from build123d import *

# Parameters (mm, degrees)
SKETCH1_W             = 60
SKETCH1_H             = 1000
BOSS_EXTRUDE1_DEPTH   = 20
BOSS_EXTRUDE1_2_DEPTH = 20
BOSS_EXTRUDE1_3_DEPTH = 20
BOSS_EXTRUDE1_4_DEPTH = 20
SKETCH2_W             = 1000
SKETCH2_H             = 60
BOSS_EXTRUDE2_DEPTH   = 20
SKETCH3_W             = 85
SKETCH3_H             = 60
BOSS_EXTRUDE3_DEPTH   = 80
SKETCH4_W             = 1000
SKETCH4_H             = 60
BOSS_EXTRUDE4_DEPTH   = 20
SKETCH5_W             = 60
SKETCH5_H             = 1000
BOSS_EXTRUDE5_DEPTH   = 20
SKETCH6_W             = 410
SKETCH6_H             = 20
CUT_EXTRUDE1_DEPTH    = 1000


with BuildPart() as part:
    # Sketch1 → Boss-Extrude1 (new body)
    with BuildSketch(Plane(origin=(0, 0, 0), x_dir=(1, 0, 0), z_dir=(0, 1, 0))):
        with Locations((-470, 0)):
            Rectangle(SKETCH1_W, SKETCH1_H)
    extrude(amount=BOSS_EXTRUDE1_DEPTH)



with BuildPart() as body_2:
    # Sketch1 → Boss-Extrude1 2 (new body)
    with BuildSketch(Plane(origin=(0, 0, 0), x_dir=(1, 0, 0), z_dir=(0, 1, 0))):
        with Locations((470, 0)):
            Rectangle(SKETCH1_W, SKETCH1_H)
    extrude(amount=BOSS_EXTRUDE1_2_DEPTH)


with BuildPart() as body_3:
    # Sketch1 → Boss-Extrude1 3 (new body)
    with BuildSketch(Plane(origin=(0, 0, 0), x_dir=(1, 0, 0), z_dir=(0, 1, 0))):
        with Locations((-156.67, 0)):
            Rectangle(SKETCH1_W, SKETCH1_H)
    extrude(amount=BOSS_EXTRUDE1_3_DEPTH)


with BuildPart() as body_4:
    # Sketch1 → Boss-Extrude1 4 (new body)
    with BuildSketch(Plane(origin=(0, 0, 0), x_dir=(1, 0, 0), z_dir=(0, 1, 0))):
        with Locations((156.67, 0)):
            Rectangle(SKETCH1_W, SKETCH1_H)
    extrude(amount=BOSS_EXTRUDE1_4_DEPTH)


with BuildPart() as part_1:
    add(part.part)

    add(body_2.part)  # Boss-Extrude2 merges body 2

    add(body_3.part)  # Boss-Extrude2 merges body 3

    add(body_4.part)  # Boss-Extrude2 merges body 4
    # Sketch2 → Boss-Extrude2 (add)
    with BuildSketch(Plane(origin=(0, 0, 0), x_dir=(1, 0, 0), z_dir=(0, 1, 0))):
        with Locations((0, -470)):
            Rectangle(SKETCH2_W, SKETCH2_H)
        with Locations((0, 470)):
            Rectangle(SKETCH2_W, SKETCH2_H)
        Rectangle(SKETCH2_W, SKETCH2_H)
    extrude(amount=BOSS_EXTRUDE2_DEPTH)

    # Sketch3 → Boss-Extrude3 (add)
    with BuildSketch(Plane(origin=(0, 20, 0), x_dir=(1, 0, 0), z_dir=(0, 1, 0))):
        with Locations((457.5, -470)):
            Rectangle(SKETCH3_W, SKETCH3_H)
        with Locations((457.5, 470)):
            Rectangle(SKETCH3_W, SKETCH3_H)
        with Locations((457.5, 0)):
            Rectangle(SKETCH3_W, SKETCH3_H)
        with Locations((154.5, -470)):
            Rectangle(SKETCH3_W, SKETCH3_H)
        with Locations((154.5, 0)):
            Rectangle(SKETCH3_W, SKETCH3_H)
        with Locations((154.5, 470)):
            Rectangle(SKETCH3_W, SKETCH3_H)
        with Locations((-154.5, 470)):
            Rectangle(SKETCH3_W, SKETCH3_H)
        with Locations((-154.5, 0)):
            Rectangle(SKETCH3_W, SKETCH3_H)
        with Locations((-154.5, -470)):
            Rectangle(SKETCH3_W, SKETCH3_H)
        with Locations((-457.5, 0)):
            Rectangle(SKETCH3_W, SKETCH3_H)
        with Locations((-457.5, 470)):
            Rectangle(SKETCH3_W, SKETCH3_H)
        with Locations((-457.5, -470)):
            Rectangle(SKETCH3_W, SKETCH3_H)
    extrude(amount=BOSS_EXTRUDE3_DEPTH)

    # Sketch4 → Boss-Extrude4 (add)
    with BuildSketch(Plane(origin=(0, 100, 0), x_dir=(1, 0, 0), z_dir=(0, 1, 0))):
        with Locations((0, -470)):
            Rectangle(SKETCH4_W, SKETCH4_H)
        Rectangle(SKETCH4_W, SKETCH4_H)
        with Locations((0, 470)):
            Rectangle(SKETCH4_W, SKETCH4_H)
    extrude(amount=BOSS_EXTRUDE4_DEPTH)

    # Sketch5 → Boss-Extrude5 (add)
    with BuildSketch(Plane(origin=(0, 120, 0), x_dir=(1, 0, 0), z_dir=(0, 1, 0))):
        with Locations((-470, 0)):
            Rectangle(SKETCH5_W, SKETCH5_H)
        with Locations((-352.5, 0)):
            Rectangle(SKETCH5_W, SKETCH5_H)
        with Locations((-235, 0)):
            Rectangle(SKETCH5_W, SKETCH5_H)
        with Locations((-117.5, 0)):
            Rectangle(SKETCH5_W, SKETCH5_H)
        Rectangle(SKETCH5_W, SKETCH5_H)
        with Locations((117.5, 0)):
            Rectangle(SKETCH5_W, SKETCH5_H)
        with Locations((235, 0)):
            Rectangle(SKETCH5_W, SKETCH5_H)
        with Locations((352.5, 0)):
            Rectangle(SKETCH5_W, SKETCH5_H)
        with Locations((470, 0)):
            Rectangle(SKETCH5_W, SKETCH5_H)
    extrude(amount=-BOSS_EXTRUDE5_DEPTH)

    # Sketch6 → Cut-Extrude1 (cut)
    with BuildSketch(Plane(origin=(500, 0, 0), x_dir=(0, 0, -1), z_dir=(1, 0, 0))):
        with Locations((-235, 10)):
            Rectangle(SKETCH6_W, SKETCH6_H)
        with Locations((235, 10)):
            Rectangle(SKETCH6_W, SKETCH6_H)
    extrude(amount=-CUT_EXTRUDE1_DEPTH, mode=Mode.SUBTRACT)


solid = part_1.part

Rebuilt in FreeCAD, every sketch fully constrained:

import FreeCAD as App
import Part
import Sketcher

doc = App.newDocument("Part")
params = doc.addObject("Spreadsheet::Sheet", "Params")
for row, (alias, value) in enumerate([
    ("sketch1_width", "60 mm"),
    ("sketch1_height", "1000 mm"),
    ("pad1_length", "20 mm"),
    ("sketch2_width", "60 mm"),
    ("sketch2_height", "1000 mm"),
    ("pad2_length", "20 mm"),
    ("sketch3_width", "60 mm"),
    ("sketch3_height", "1000 mm"),
    ("pad3_length", "20 mm"),
    ("sketch4_width", "60 mm"),
    ("sketch4_height", "1000 mm"),
    ("pad4_length", "20 mm"),
    ("sketch5_width", "1000 mm"),
    ("sketch5_height", "60 mm"),
    ("pad5_length", "20 mm"),
    ("sketch6_width", "85 mm"),
    ("sketch6_height", "60 mm"),
    ("pad6_length", "80 mm"),
    ("sketch7_width", "1000 mm"),
    ("sketch7_height", "60 mm"),
    ("pad7_length", "20 mm"),
    ("sketch8_width", "60 mm"),
    ("sketch8_height", "1000 mm"),
    ("pad8_length", "20 mm"),
    ("sketch9_width", "20 mm"),
    ("sketch9_height", "410 mm"),
    ("pocket1_length", "1000 mm"),
], start=1):
    params.set(f"A{row}", alias)
    params.set(f"B{row}", "=" + value)
    params.setAlias(f"B{row}", alias)

body = doc.addObject("PartDesign::Body", "Body")

# Sketch on XZ plane
sketch1 = body.newObject("Sketcher::SketchObject", "Sketch")
sketch1.AttachmentSupport = (doc.getObject("XZ_Plane"), [""])
sketch1.MapMode = "FlatFace"
sketch1.addGeometry([
    Part.LineSegment(App.Vector(-500, -500, 0), App.Vector(-500, 500, 0)),
    Part.LineSegment(App.Vector(-500, 500, 0), App.Vector(-440, 500, 0)),
    Part.LineSegment(App.Vector(-440, 500, 0), App.Vector(-440, -500, 0)),
    Part.LineSegment(App.Vector(-440, -500, 0), App.Vector(-500, -500, 0)),
], False)
sketch1.addConstraint([
    Sketcher.Constraint("Coincident", 0, 2, 1, 1),
    Sketcher.Constraint("Coincident", 1, 2, 2, 1),
    Sketcher.Constraint("Coincident", 2, 2, 3, 1),
    Sketcher.Constraint("Coincident", 3, 2, 0, 1),
    Sketcher.Constraint("Vertical", 0),
    Sketcher.Constraint("Horizontal", 1),
    Sketcher.Constraint("Vertical", 2),
    Sketcher.Constraint("Horizontal", 3),
    Sketcher.Constraint("DistanceX", 1, 1, 1, 2, 60.0),
    Sketcher.Constraint("DistanceY", 0, 1, 0, 2, 1000.0),
    Sketcher.Constraint("DistanceX", 0, 2, -1, 1, 500.0),
    Sketcher.Constraint("DistanceY", -1, 1, 0, 2, 500.0),
])
sketch1.setExpression("Constraints[8]", "Params.sketch1_width")
sketch1.setExpression("Constraints[9]", "Params.sketch1_height")
pad1 = body.newObject("PartDesign::Pad", "Pad")
pad1.Profile = sketch1
pad1.setExpression("Length", "Params.pad1_length")
pad1.Reversed = True
body2 = doc.addObject("PartDesign::Body", "Body001")

# Sketch on XZ plane
sketch2 = body2.newObject("Sketcher::SketchObject", "Sketch001")
sketch2.AttachmentSupport = (doc.getObject("XZ_Plane001"), [""])
sketch2.MapMode = "FlatFace"
sketch2.addGeometry([
    Part.LineSegment(App.Vector(440, -500, 0), App.Vector(440, 500, 0)),
    Part.LineSegment(App.Vector(440, 500, 0), App.Vector(500, 500, 0)),
    Part.LineSegment(App.Vector(500, 500, 0), App.Vector(500, -500, 0)),
    Part.LineSegment(App.Vector(500, -500, 0), App.Vector(440, -500, 0)),
], False)
sketch2.addConstraint([
    Sketcher.Constraint("Coincident", 0, 2, 1, 1),
    Sketcher.Constraint("Coincident", 1, 2, 2, 1),
    Sketcher.Constraint("Coincident", 2, 2, 3, 1),
    Sketcher.Constraint("Coincident", 3, 2, 0, 1),
    Sketcher.Constraint("Vertical", 0),
    Sketcher.Constraint("Horizontal", 1),
    Sketcher.Constraint("Vertical", 2),
    Sketcher.Constraint("Horizontal", 3),
    Sketcher.Constraint("DistanceX", 1, 1, 1, 2, 60.0),
    Sketcher.Constraint("DistanceY", 0, 1, 0, 2, 1000.0),
    Sketcher.Constraint("DistanceX", -1, 1, 0, 2, 440.0),
    Sketcher.Constraint("DistanceY", -1, 1, 0, 2, 500.0),
])
sketch2.setExpression("Constraints[8]", "Params.sketch2_width")
sketch2.setExpression("Constraints[9]", "Params.sketch2_height")
pad2 = body2.newObject("PartDesign::Pad", "Pad001")
pad2.Profile = sketch2
pad2.setExpression("Length", "Params.pad2_length")
pad2.Reversed = True
body3 = doc.addObject("PartDesign::Body", "Body002")

# Sketch on XZ plane
sketch3 = body3.newObject("Sketcher::SketchObject", "Sketch002")
sketch3.AttachmentSupport = (doc.getObject("XZ_Plane002"), [""])
sketch3.MapMode = "FlatFace"
sketch3.addGeometry([
    Part.LineSegment(App.Vector(-187, -500, 0), App.Vector(-187, 500, 0)),
    Part.LineSegment(App.Vector(-187, 500, 0), App.Vector(-127, 500, 0)),
    Part.LineSegment(App.Vector(-127, 500, 0), App.Vector(-127, -500, 0)),
    Part.LineSegment(App.Vector(-127, -500, 0), App.Vector(-187, -500, 0)),
], False)
sketch3.addConstraint([
    Sketcher.Constraint("Coincident", 0, 2, 1, 1),
    Sketcher.Constraint("Coincident", 1, 2, 2, 1),
    Sketcher.Constraint("Coincident", 2, 2, 3, 1),
    Sketcher.Constraint("Coincident", 3, 2, 0, 1),
    Sketcher.Constraint("Vertical", 0),
    Sketcher.Constraint("Horizontal", 1),
    Sketcher.Constraint("Vertical", 2),
    Sketcher.Constraint("Horizontal", 3),
    Sketcher.Constraint("DistanceX", 1, 1, 1, 2, 60.0),
    Sketcher.Constraint("DistanceY", 0, 1, 0, 2, 1000.0),
    Sketcher.Constraint("DistanceY", -1, 1, 0, 2, 500.0),
    Sketcher.Constraint("DistanceX", 0, 2, -1, 1, 186.67),
])
sketch3.setExpression("Constraints[8]", "Params.sketch3_width")
sketch3.setExpression("Constraints[9]", "Params.sketch3_height")
pad3 = body3.newObject("PartDesign::Pad", "Pad002")
pad3.Profile = sketch3
pad3.setExpression("Length", "Params.pad3_length")
pad3.Reversed = True
body4 = doc.addObject("PartDesign::Body", "Body003")

# Sketch on XZ plane
sketch4 = body4.newObject("Sketcher::SketchObject", "Sketch003")
sketch4.AttachmentSupport = (doc.getObject("XZ_Plane003"), [""])
sketch4.MapMode = "FlatFace"
sketch4.addGeometry([
    Part.LineSegment(App.Vector(127, -500, 0), App.Vector(127, 500, 0)),
    Part.LineSegment(App.Vector(127, 500, 0), App.Vector(187, 500, 0)),
    Part.LineSegment(App.Vector(187, 500, 0), App.Vector(187, -500, 0)),
    Part.LineSegment(App.Vector(187, -500, 0), App.Vector(127, -500, 0)),
], False)
sketch4.addConstraint([
    Sketcher.Constraint("Coincident", 0, 2, 1, 1),
    Sketcher.Constraint("Coincident", 1, 2, 2, 1),
    Sketcher.Constraint("Coincident", 2, 2, 3, 1),
    Sketcher.Constraint("Coincident", 3, 2, 0, 1),
    Sketcher.Constraint("Vertical", 0),
    Sketcher.Constraint("Horizontal", 1),
    Sketcher.Constraint("Vertical", 2),
    Sketcher.Constraint("Horizontal", 3),
    Sketcher.Constraint("DistanceX", 1, 1, 1, 2, 60.0),
    Sketcher.Constraint("DistanceY", 0, 1, 0, 2, 1000.0),
    Sketcher.Constraint("DistanceY", -1, 1, 0, 2, 500.0),
    Sketcher.Constraint("DistanceX", -1, 1, 0, 2, 126.67),
])
sketch4.setExpression("Constraints[8]", "Params.sketch4_width")
sketch4.setExpression("Constraints[9]", "Params.sketch4_height")
pad4 = body4.newObject("PartDesign::Pad", "Pad003")
pad4.Profile = sketch4
pad4.setExpression("Length", "Params.pad4_length")
pad4.Reversed = True
body.AllowCompound = True
doc.recompute()

boolean = body.newObject("PartDesign::Boolean", "Boolean")
boolean.Type = "Fuse"
boolean.addObjects([body2])
doc.recompute()

boolean2 = body.newObject("PartDesign::Boolean", "Boolean001")
boolean2.Type = "Fuse"
boolean2.addObjects([body3])
doc.recompute()

boolean3 = body.newObject("PartDesign::Boolean", "Boolean002")
boolean3.Type = "Fuse"
boolean3.addObjects([body4])

# Sketch on XZ plane
sketch5 = body.newObject("Sketcher::SketchObject", "Sketch004")
sketch5.AttachmentSupport = (doc.getObject("XZ_Plane"), [""])
sketch5.MapMode = "FlatFace"
sketch5.addGeometry([
    Part.LineSegment(App.Vector(-500, 440, 0), App.Vector(-500, 500, 0)),  # 0
    Part.LineSegment(App.Vector(-500, 500, 0), App.Vector(500, 500, 0)),  # 1
    Part.LineSegment(App.Vector(500, 500, 0), App.Vector(500, 440, 0)),  # 2
    Part.LineSegment(App.Vector(500, 440, 0), App.Vector(-500, 440, 0)),  # 3
    Part.LineSegment(App.Vector(-500, -500, 0), App.Vector(-500, -440, 0)),  # 4
    Part.LineSegment(App.Vector(-500, -440, 0), App.Vector(500, -440, 0)),  # 5
    Part.LineSegment(App.Vector(500, -440, 0), App.Vector(500, -500, 0)),  # 6
    Part.LineSegment(App.Vector(500, -500, 0), App.Vector(-500, -500, 0)),  # 7
    Part.LineSegment(App.Vector(-500, -30, 0), App.Vector(-500, 30, 0)),  # 8
    Part.LineSegment(App.Vector(-500, 30, 0), App.Vector(500, 30, 0)),  # 9
    Part.LineSegment(App.Vector(500, 30, 0), App.Vector(500, -30, 0)),  # 10
    Part.LineSegment(App.Vector(500, -30, 0), App.Vector(-500, -30, 0)),  # 11
], False)
sketch5.addConstraint([
    Sketcher.Constraint("Coincident", 0, 2, 1, 1),
    Sketcher.Constraint("Coincident", 1, 2, 2, 1),
    Sketcher.Constraint("Coincident", 2, 2, 3, 1),
    Sketcher.Constraint("Coincident", 3, 2, 0, 1),
    Sketcher.Constraint("Coincident", 4, 2, 5, 1),
    Sketcher.Constraint("Coincident", 5, 2, 6, 1),
    Sketcher.Constraint("Coincident", 6, 2, 7, 1),
    Sketcher.Constraint("Coincident", 7, 2, 4, 1),
    Sketcher.Constraint("Coincident", 8, 2, 9, 1),
    Sketcher.Constraint("Coincident", 9, 2, 10, 1),
    Sketcher.Constraint("Coincident", 10, 2, 11, 1),
    Sketcher.Constraint("Coincident", 11, 2, 8, 1),
    Sketcher.Constraint("Vertical", 0),
    Sketcher.Constraint("Horizontal", 1),
    Sketcher.Constraint("Vertical", 2),
    Sketcher.Constraint("Horizontal", 3),
    Sketcher.Constraint("Vertical", 4),
    Sketcher.Constraint("Horizontal", 5),
    Sketcher.Constraint("Vertical", 6),
    Sketcher.Constraint("Horizontal", 7),
    Sketcher.Constraint("Vertical", 8),
    Sketcher.Constraint("Horizontal", 9),
    Sketcher.Constraint("Vertical", 10),
    Sketcher.Constraint("Horizontal", 11),
    Sketcher.Constraint("Symmetric", 2, 2, 4, 2, -1, 1),
    Sketcher.Constraint("Symmetric", 0, 2, 6, 2, -1, 1),
    Sketcher.Constraint("Symmetric", 8, 2, 10, 2, -1, 1),
    Sketcher.Constraint("Vertical", 3, 2, 4, 2),
    Sketcher.Constraint("Vertical", 7, 2, 8, 2),
    Sketcher.Constraint("Equal", 6, 8),
    Sketcher.Constraint("DistanceX", 1, 1, 1, 2, 1000.0),
    Sketcher.Constraint("DistanceY", 0, 1, 0, 2, 60.0),
    Sketcher.Constraint("DistanceY", -1, 1, 0, 2, 500.0),
])
sketch5.setExpression("Constraints[30]", "Params.sketch5_width")
sketch5.setExpression("Constraints[31]", "Params.sketch5_height")
pad5 = body.newObject("PartDesign::Pad", "Pad004")
pad5.Profile = sketch5
pad5.setExpression("Length", "Params.pad5_length")
pad5.Reversed = True

# Sketch on XZ plane
sketch6 = body.newObject("Sketcher::SketchObject", "Sketch005")
sketch6.AttachmentSupport = (doc.getObject("XZ_Plane"), [""])
sketch6.MapMode = "FlatFace"
sketch6.AttachmentOffset = App.Placement(App.Vector(0, 0, -20), App.Rotation())
sketch6.addGeometry([
    Part.LineSegment(App.Vector(415, 440, 0), App.Vector(415, 500, 0)),  # 0
    Part.LineSegment(App.Vector(415, 500, 0), App.Vector(500, 500, 0)),  # 1
    Part.LineSegment(App.Vector(500, 500, 0), App.Vector(500, 440, 0)),  # 2
    Part.LineSegment(App.Vector(500, 440, 0), App.Vector(415, 440, 0)),  # 3
    Part.LineSegment(App.Vector(415, -500, 0), App.Vector(415, -440, 0)),  # 4
    Part.LineSegment(App.Vector(415, -440, 0), App.Vector(500, -440, 0)),  # 5
    Part.LineSegment(App.Vector(500, -440, 0), App.Vector(500, -500, 0)),  # 6
    Part.LineSegment(App.Vector(500, -500, 0), App.Vector(415, -500, 0)),  # 7
    Part.LineSegment(App.Vector(415, -30, 0), App.Vector(415, 30, 0)),  # 8
    Part.LineSegment(App.Vector(415, 30, 0), App.Vector(500, 30, 0)),  # 9
    Part.LineSegment(App.Vector(500, 30, 0), App.Vector(500, -30, 0)),  # 10
    Part.LineSegment(App.Vector(500, -30, 0), App.Vector(415, -30, 0)),  # 11
    Part.LineSegment(App.Vector(112, 440, 0), App.Vector(112, 500, 0)),  # 12
    Part.LineSegment(App.Vector(112, 500, 0), App.Vector(197, 500, 0)),  # 13
    Part.LineSegment(App.Vector(197, 500, 0), App.Vector(197, 440, 0)),  # 14
    Part.LineSegment(App.Vector(197, 440, 0), App.Vector(112, 440, 0)),  # 15
    Part.LineSegment(App.Vector(112, -30, 0), App.Vector(112, 30, 0)),  # 16
    Part.LineSegment(App.Vector(112, 30, 0), App.Vector(197, 30, 0)),  # 17
    Part.LineSegment(App.Vector(197, 30, 0), App.Vector(197, -30, 0)),  # 18
    Part.LineSegment(App.Vector(197, -30, 0), App.Vector(112, -30, 0)),  # 19
    Part.LineSegment(App.Vector(112, -500, 0), App.Vector(112, -440, 0)),  # 20
    Part.LineSegment(App.Vector(112, -440, 0), App.Vector(197, -440, 0)),  # 21
    Part.LineSegment(App.Vector(197, -440, 0), App.Vector(197, -500, 0)),  # 22
    Part.LineSegment(App.Vector(197, -500, 0), App.Vector(112, -500, 0)),  # 23
    Part.LineSegment(App.Vector(-197, -500, 0), App.Vector(-197, -440, 0)),  # 24
    Part.LineSegment(App.Vector(-197, -440, 0), App.Vector(-112, -440, 0)),  # 25
    Part.LineSegment(App.Vector(-112, -440, 0), App.Vector(-112, -500, 0)),  # 26
    Part.LineSegment(App.Vector(-112, -500, 0), App.Vector(-197, -500, 0)),  # 27
    Part.LineSegment(App.Vector(-197, -30, 0), App.Vector(-197, 30, 0)),  # 28
    Part.LineSegment(App.Vector(-197, 30, 0), App.Vector(-112, 30, 0)),  # 29
    Part.LineSegment(App.Vector(-112, 30, 0), App.Vector(-112, -30, 0)),  # 30
    Part.LineSegment(App.Vector(-112, -30, 0), App.Vector(-197, -30, 0)),  # 31
    Part.LineSegment(App.Vector(-197, 440, 0), App.Vector(-197, 500, 0)),  # 32
    Part.LineSegment(App.Vector(-197, 500, 0), App.Vector(-112, 500, 0)),  # 33
    Part.LineSegment(App.Vector(-112, 500, 0), App.Vector(-112, 440, 0)),  # 34
    Part.LineSegment(App.Vector(-112, 440, 0), App.Vector(-197, 440, 0)),  # 35
    Part.LineSegment(App.Vector(-500, -30, 0), App.Vector(-500, 30, 0)),  # 36
    Part.LineSegment(App.Vector(-500, 30, 0), App.Vector(-415, 30, 0)),  # 37
    Part.LineSegment(App.Vector(-415, 30, 0), App.Vector(-415, -30, 0)),  # 38
    Part.LineSegment(App.Vector(-415, -30, 0), App.Vector(-500, -30, 0)),  # 39
    Part.LineSegment(App.Vector(-500, -500, 0), App.Vector(-500, -440, 0)),  # 40
    Part.LineSegment(App.Vector(-500, -440, 0), App.Vector(-415, -440, 0)),  # 41
    Part.LineSegment(App.Vector(-415, -440, 0), App.Vector(-415, -500, 0)),  # 42
    Part.LineSegment(App.Vector(-415, -500, 0), App.Vector(-500, -500, 0)),  # 43
    Part.LineSegment(App.Vector(-500, 440, 0), App.Vector(-500, 500, 0)),  # 44
    Part.LineSegment(App.Vector(-500, 500, 0), App.Vector(-415, 500, 0)),  # 45
    Part.LineSegment(App.Vector(-415, 500, 0), App.Vector(-415, 440, 0)),  # 46
    Part.LineSegment(App.Vector(-415, 440, 0), App.Vector(-500, 440, 0)),  # 47
], False)
sketch6.addConstraint([
    Sketcher.Constraint("Coincident", 0, 2, 1, 1),
    Sketcher.Constraint("Coincident", 1, 2, 2, 1),
    Sketcher.Constraint("Coincident", 2, 2, 3, 1),
    Sketcher.Constraint("Coincident", 3, 2, 0, 1),
    Sketcher.Constraint("Coincident", 4, 2, 5, 1),
    Sketcher.Constraint("Coincident", 5, 2, 6, 1),
    Sketcher.Constraint("Coincident", 6, 2, 7, 1),
    Sketcher.Constraint("Coincident", 7, 2, 4, 1),
    Sketcher.Constraint("Coincident", 8, 2, 9, 1),
    Sketcher.Constraint("Coincident", 9, 2, 10, 1),
    Sketcher.Constraint("Coincident", 10, 2, 11, 1),
    Sketcher.Constraint("Coincident", 11, 2, 8, 1),
    Sketcher.Constraint("Coincident", 12, 2, 13, 1),
    Sketcher.Constraint("Coincident", 13, 2, 14, 1),
    Sketcher.Constraint("Coincident", 14, 2, 15, 1),
    Sketcher.Constraint("Coincident", 15, 2, 12, 1),
    Sketcher.Constraint("Coincident", 16, 2, 17, 1),
    Sketcher.Constraint("Coincident", 17, 2, 18, 1),
    Sketcher.Constraint("Coincident", 18, 2, 19, 1),
    Sketcher.Constraint("Coincident", 19, 2, 16, 1),
    Sketcher.Constraint("Coincident", 20, 2, 21, 1),
    Sketcher.Constraint("Coincident", 21, 2, 22, 1),
    Sketcher.Constraint("Coincident", 22, 2, 23, 1),
    Sketcher.Constraint("Coincident", 23, 2, 20, 1),
    Sketcher.Constraint("Coincident", 24, 2, 25, 1),
    Sketcher.Constraint("Coincident", 25, 2, 26, 1),
    Sketcher.Constraint("Coincident", 26, 2, 27, 1),
    Sketcher.Constraint("Coincident", 27, 2, 24, 1),
    Sketcher.Constraint("Coincident", 28, 2, 29, 1),
    Sketcher.Constraint("Coincident", 29, 2, 30, 1),
    Sketcher.Constraint("Coincident", 30, 2, 31, 1),
    Sketcher.Constraint("Coincident", 31, 2, 28, 1),
    Sketcher.Constraint("Coincident", 32, 2, 33, 1),
    Sketcher.Constraint("Coincident", 33, 2, 34, 1),
    Sketcher.Constraint("Coincident", 34, 2, 35, 1),
    Sketcher.Constraint("Coincident", 35, 2, 32, 1),
    Sketcher.Constraint("Coincident", 36, 2, 37, 1),
    Sketcher.Constraint("Coincident", 37, 2, 38, 1),
    Sketcher.Constraint("Coincident", 38, 2, 39, 1),
    Sketcher.Constraint("Coincident", 39, 2, 36, 1),
    Sketcher.Constraint("Coincident", 40, 2, 41, 1),
    Sketcher.Constraint("Coincident", 41, 2, 42, 1),
    Sketcher.Constraint("Coincident", 42, 2, 43, 1),
    Sketcher.Constraint("Coincident", 43, 2, 40, 1),
    Sketcher.Constraint("Coincident", 44, 2, 45, 1),
    Sketcher.Constraint("Coincident", 45, 2, 46, 1),
    Sketcher.Constraint("Coincident", 46, 2, 47, 1),
    Sketcher.Constraint("Coincident", 47, 2, 44, 1),
    Sketcher.Constraint("Vertical", 0),
    Sketcher.Constraint("Horizontal", 1),
    Sketcher.Constraint("Vertical", 2),
    Sketcher.Constraint("Horizontal", 3),
    Sketcher.Constraint("Vertical", 4),
    Sketcher.Constraint("Horizontal", 5),
    Sketcher.Constraint("Vertical", 6),
    Sketcher.Constraint("Horizontal", 7),
    Sketcher.Constraint("Vertical", 8),
    Sketcher.Constraint("Horizontal", 9),
    Sketcher.Constraint("Vertical", 10),
    Sketcher.Constraint("Horizontal", 11),
    Sketcher.Constraint("Vertical", 12),
    Sketcher.Constraint("Horizontal", 13),
    Sketcher.Constraint("Vertical", 14),
    Sketcher.Constraint("Horizontal", 15),
    Sketcher.Constraint("Vertical", 16),
    Sketcher.Constraint("Horizontal", 17),
    Sketcher.Constraint("Vertical", 18),
    Sketcher.Constraint("Horizontal", 19),
    Sketcher.Constraint("Vertical", 20),
    Sketcher.Constraint("Horizontal", 21),
    Sketcher.Constraint("Vertical", 22),
    Sketcher.Constraint("Horizontal", 23),
    Sketcher.Constraint("Vertical", 24),
    Sketcher.Constraint("Horizontal", 25),
    Sketcher.Constraint("Vertical", 26),
    Sketcher.Constraint("Horizontal", 27),
    Sketcher.Constraint("Vertical", 28),
    Sketcher.Constraint("Horizontal", 29),
    Sketcher.Constraint("Vertical", 30),
    Sketcher.Constraint("Horizontal", 31),
    Sketcher.Constraint("Vertical", 32),
    Sketcher.Constraint("Horizontal", 33),
    Sketcher.Constraint("Vertical", 34),
    Sketcher.Constraint("Horizontal", 35),
    Sketcher.Constraint("Vertical", 36),
    Sketcher.Constraint("Horizontal", 37),
    Sketcher.Constraint("Vertical", 38),
    Sketcher.Constraint("Horizontal", 39),
    Sketcher.Constraint("Vertical", 40),
    Sketcher.Constraint("Horizontal", 41),
    Sketcher.Constraint("Vertical", 42),
    Sketcher.Constraint("Horizontal", 43),
    Sketcher.Constraint("Vertical", 44),
    Sketcher.Constraint("Horizontal", 45),
    Sketcher.Constraint("Vertical", 46),
    Sketcher.Constraint("Horizontal", 47),
    Sketcher.Constraint("Symmetric", 14, 2, 24, 2, -1, 1),
    Sketcher.Constraint("Symmetric", 12, 2, 26, 2, -1, 1),
    Sketcher.Constraint("Symmetric", 18, 2, 28, 2, -1, 1),
    Sketcher.Constraint("Symmetric", 16, 2, 30, 2, -1, 1),
    Sketcher.Constraint("Symmetric", 22, 2, 32, 2, -1, 1),
    Sketcher.Constraint("Symmetric", 20, 2, 34, 2, -1, 1),
    Sketcher.Constraint("Symmetric", 10, 2, 36, 2, -1, 1),
    Sketcher.Constraint("Symmetric", 8, 2, 38, 2, -1, 1),
    Sketcher.Constraint("Symmetric", 2, 2, 40, 2, -1, 1),
    Sketcher.Constraint("Symmetric", 0, 2, 42, 2, -1, 1),
    Sketcher.Constraint("Symmetric", 6, 2, 44, 2, -1, 1),
    Sketcher.Constraint("Symmetric", 4, 2, 46, 2, -1, 1),
    Sketcher.Constraint("Symmetric", 21, 2, 24, 2, -2),
    Sketcher.Constraint("Symmetric", 23, 2, 26, 2, -2),
    Sketcher.Constraint("Symmetric", 5, 2, 40, 2, -2),
    Sketcher.Constraint("Symmetric", 7, 2, 42, 2, -2),
    Sketcher.Constraint("Horizontal", 1, 2, 12, 2),
    Sketcher.Constraint("Horizontal", 3, 2, 14, 2),
    Sketcher.Constraint("Horizontal", 9, 2, 16, 2),
    Sketcher.Constraint("Horizontal", 11, 2, 18, 2),
    Sketcher.Constraint("Horizontal", 17, 2, 28, 2),
    Sketcher.Constraint("Vertical", 7, 2, 8, 2),
    Sketcher.Constraint("Vertical", 6, 2, 9, 2),
    Sketcher.Constraint("Vertical", 15, 2, 16, 2),
    Sketcher.Constraint("Vertical", 14, 2, 17, 2),
    Sketcher.Constraint("Equal", 11, 13),
    Sketcher.Constraint("Equal", 6, 8),
    Sketcher.Constraint("DistanceX", 1, 1, 1, 2, 85.0),
    Sketcher.Constraint("DistanceY", 0, 1, 0, 2, 60.0),
    Sketcher.Constraint("DistanceX", -1, 1, 0, 2, 415.0),
    Sketcher.Constraint("DistanceY", -1, 1, 0, 2, 500.0),
    Sketcher.Constraint("DistanceX", -1, 1, 12, 2, 112.0),
])
sketch6.setExpression("Constraints[123]", "Params.sketch6_width")
sketch6.setExpression("Constraints[124]", "Params.sketch6_height")
pad6 = body.newObject("PartDesign::Pad", "Pad005")
pad6.Profile = sketch6
pad6.setExpression("Length", "Params.pad6_length")
pad6.Reversed = True

# Sketch on XZ plane
sketch7 = body.newObject("Sketcher::SketchObject", "Sketch006")
sketch7.AttachmentSupport = (doc.getObject("XZ_Plane"), [""])
sketch7.MapMode = "FlatFace"
sketch7.AttachmentOffset = App.Placement(App.Vector(0, 0, -100), App.Rotation())
sketch7.addGeometry([
    Part.LineSegment(App.Vector(-500, 440, 0), App.Vector(-500, 500, 0)),  # 0
    Part.LineSegment(App.Vector(-500, 500, 0), App.Vector(500, 500, 0)),  # 1
    Part.LineSegment(App.Vector(500, 500, 0), App.Vector(500, 440, 0)),  # 2
    Part.LineSegment(App.Vector(500, 440, 0), App.Vector(-500, 440, 0)),  # 3
    Part.LineSegment(App.Vector(-500, -30, 0), App.Vector(-500, 30, 0)),  # 4
    Part.LineSegment(App.Vector(-500, 30, 0), App.Vector(500, 30, 0)),  # 5
    Part.LineSegment(App.Vector(500, 30, 0), App.Vector(500, -30, 0)),  # 6
    Part.LineSegment(App.Vector(500, -30, 0), App.Vector(-500, -30, 0)),  # 7
    Part.LineSegment(App.Vector(-500, -500, 0), App.Vector(-500, -440, 0)),  # 8
    Part.LineSegment(App.Vector(-500, -440, 0), App.Vector(500, -440, 0)),  # 9
    Part.LineSegment(App.Vector(500, -440, 0), App.Vector(500, -500, 0)),  # 10
    Part.LineSegment(App.Vector(500, -500, 0), App.Vector(-500, -500, 0)),  # 11
], False)
sketch7.addConstraint([
    Sketcher.Constraint("Coincident", 0, 2, 1, 1),
    Sketcher.Constraint("Coincident", 1, 2, 2, 1),
    Sketcher.Constraint("Coincident", 2, 2, 3, 1),
    Sketcher.Constraint("Coincident", 3, 2, 0, 1),
    Sketcher.Constraint("Coincident", 4, 2, 5, 1),
    Sketcher.Constraint("Coincident", 5, 2, 6, 1),
    Sketcher.Constraint("Coincident", 6, 2, 7, 1),
    Sketcher.Constraint("Coincident", 7, 2, 4, 1),
    Sketcher.Constraint("Coincident", 8, 2, 9, 1),
    Sketcher.Constraint("Coincident", 9, 2, 10, 1),
    Sketcher.Constraint("Coincident", 10, 2, 11, 1),
    Sketcher.Constraint("Coincident", 11, 2, 8, 1),
    Sketcher.Constraint("Vertical", 0),
    Sketcher.Constraint("Horizontal", 1),
    Sketcher.Constraint("Vertical", 2),
    Sketcher.Constraint("Horizontal", 3),
    Sketcher.Constraint("Vertical", 4),
    Sketcher.Constraint("Horizontal", 5),
    Sketcher.Constraint("Vertical", 6),
    Sketcher.Constraint("Horizontal", 7),
    Sketcher.Constraint("Vertical", 8),
    Sketcher.Constraint("Horizontal", 9),
    Sketcher.Constraint("Vertical", 10),
    Sketcher.Constraint("Horizontal", 11),
    Sketcher.Constraint("Symmetric", 4, 2, 6, 2, -1, 1),
    Sketcher.Constraint("Symmetric", 2, 2, 8, 2, -1, 1),
    Sketcher.Constraint("Symmetric", 0, 2, 10, 2, -1, 1),
    Sketcher.Constraint("Vertical", 3, 2, 4, 2),
    Sketcher.Constraint("Vertical", 2, 2, 5, 2),
    Sketcher.Constraint("Equal", 2, 4),
    Sketcher.Constraint("DistanceX", 1, 1, 1, 2, 1000.0),
    Sketcher.Constraint("DistanceY", 0, 1, 0, 2, 60.0),
    Sketcher.Constraint("DistanceY", -1, 1, 0, 2, 500.0),
])
sketch7.setExpression("Constraints[30]", "Params.sketch7_width")
sketch7.setExpression("Constraints[31]", "Params.sketch7_height")
pad7 = body.newObject("PartDesign::Pad", "Pad006")
pad7.Profile = sketch7
pad7.setExpression("Length", "Params.pad7_length")
pad7.Reversed = True

# Sketch on XZ plane
sketch8 = body.newObject("Sketcher::SketchObject", "Sketch007")
sketch8.AttachmentSupport = (doc.getObject("XZ_Plane"), [""])
sketch8.MapMode = "FlatFace"
sketch8.AttachmentOffset = App.Placement(App.Vector(0, 0, -120), App.Rotation())
sketch8.addGeometry([
    Part.LineSegment(App.Vector(-500, -500, 0), App.Vector(-500, 500, 0)),  # 0
    Part.LineSegment(App.Vector(-500, 500, 0), App.Vector(-440, 500, 0)),  # 1
    Part.LineSegment(App.Vector(-440, 500, 0), App.Vector(-440, -500, 0)),  # 2
    Part.LineSegment(App.Vector(-440, -500, 0), App.Vector(-500, -500, 0)),  # 3
    Part.LineSegment(App.Vector(-382, -500, 0), App.Vector(-382, 500, 0)),  # 4
    Part.LineSegment(App.Vector(-382, 500, 0), App.Vector(-322, 500, 0)),  # 5
    Part.LineSegment(App.Vector(-322, 500, 0), App.Vector(-322, -500, 0)),  # 6
    Part.LineSegment(App.Vector(-322, -500, 0), App.Vector(-382, -500, 0)),  # 7
    Part.LineSegment(App.Vector(-265, -500, 0), App.Vector(-265, 500, 0)),  # 8
    Part.LineSegment(App.Vector(-265, 500, 0), App.Vector(-205, 500, 0)),  # 9
    Part.LineSegment(App.Vector(-205, 500, 0), App.Vector(-205, -500, 0)),  # 10
    Part.LineSegment(App.Vector(-205, -500, 0), App.Vector(-265, -500, 0)),  # 11
    Part.LineSegment(App.Vector(-148, -500, 0), App.Vector(-148, 500, 0)),  # 12
    Part.LineSegment(App.Vector(-148, 500, 0), App.Vector(-88, 500, 0)),  # 13
    Part.LineSegment(App.Vector(-88, 500, 0), App.Vector(-88, -500, 0)),  # 14
    Part.LineSegment(App.Vector(-88, -500, 0), App.Vector(-148, -500, 0)),  # 15
    Part.LineSegment(App.Vector(-30, -500, 0), App.Vector(-30, 500, 0)),  # 16
    Part.LineSegment(App.Vector(-30, 500, 0), App.Vector(30, 500, 0)),  # 17
    Part.LineSegment(App.Vector(30, 500, 0), App.Vector(30, -500, 0)),  # 18
    Part.LineSegment(App.Vector(30, -500, 0), App.Vector(-30, -500, 0)),  # 19
    Part.LineSegment(App.Vector(88, -500, 0), App.Vector(88, 500, 0)),  # 20
    Part.LineSegment(App.Vector(88, 500, 0), App.Vector(148, 500, 0)),  # 21
    Part.LineSegment(App.Vector(148, 500, 0), App.Vector(148, -500, 0)),  # 22
    Part.LineSegment(App.Vector(148, -500, 0), App.Vector(88, -500, 0)),  # 23
    Part.LineSegment(App.Vector(205, -500, 0), App.Vector(205, 500, 0)),  # 24
    Part.LineSegment(App.Vector(205, 500, 0), App.Vector(265, 500, 0)),  # 25
    Part.LineSegment(App.Vector(265, 500, 0), App.Vector(265, -500, 0)),  # 26
    Part.LineSegment(App.Vector(265, -500, 0), App.Vector(205, -500, 0)),  # 27
    Part.LineSegment(App.Vector(322, -500, 0), App.Vector(322, 500, 0)),  # 28
    Part.LineSegment(App.Vector(322, 500, 0), App.Vector(382, 500, 0)),  # 29
    Part.LineSegment(App.Vector(382, 500, 0), App.Vector(382, -500, 0)),  # 30
    Part.LineSegment(App.Vector(382, -500, 0), App.Vector(322, -500, 0)),  # 31
    Part.LineSegment(App.Vector(440, -500, 0), App.Vector(440, 500, 0)),  # 32
    Part.LineSegment(App.Vector(440, 500, 0), App.Vector(500, 500, 0)),  # 33
    Part.LineSegment(App.Vector(500, 500, 0), App.Vector(500, -500, 0)),  # 34
    Part.LineSegment(App.Vector(500, -500, 0), App.Vector(440, -500, 0)),  # 35
], False)
sketch8.addConstraint([
    Sketcher.Constraint("Coincident", 0, 2, 1, 1),
    Sketcher.Constraint("Coincident", 1, 2, 2, 1),
    Sketcher.Constraint("Coincident", 2, 2, 3, 1),
    Sketcher.Constraint("Coincident", 3, 2, 0, 1),
    Sketcher.Constraint("Coincident", 4, 2, 5, 1),
    Sketcher.Constraint("Coincident", 5, 2, 6, 1),
    Sketcher.Constraint("Coincident", 6, 2, 7, 1),
    Sketcher.Constraint("Coincident", 7, 2, 4, 1),
    Sketcher.Constraint("Coincident", 8, 2, 9, 1),
    Sketcher.Constraint("Coincident", 9, 2, 10, 1),
    Sketcher.Constraint("Coincident", 10, 2, 11, 1),
    Sketcher.Constraint("Coincident", 11, 2, 8, 1),
    Sketcher.Constraint("Coincident", 12, 2, 13, 1),
    Sketcher.Constraint("Coincident", 13, 2, 14, 1),
    Sketcher.Constraint("Coincident", 14, 2, 15, 1),
    Sketcher.Constraint("Coincident", 15, 2, 12, 1),
    Sketcher.Constraint("Coincident", 16, 2, 17, 1),
    Sketcher.Constraint("Coincident", 17, 2, 18, 1),
    Sketcher.Constraint("Coincident", 18, 2, 19, 1),
    Sketcher.Constraint("Coincident", 19, 2, 16, 1),
    Sketcher.Constraint("Coincident", 20, 2, 21, 1),
    Sketcher.Constraint("Coincident", 21, 2, 22, 1),
    Sketcher.Constraint("Coincident", 22, 2, 23, 1),
    Sketcher.Constraint("Coincident", 23, 2, 20, 1),
    Sketcher.Constraint("Coincident", 24, 2, 25, 1),
    Sketcher.Constraint("Coincident", 25, 2, 26, 1),
    Sketcher.Constraint("Coincident", 26, 2, 27, 1),
    Sketcher.Constraint("Coincident", 27, 2, 24, 1),
    Sketcher.Constraint("Coincident", 28, 2, 29, 1),
    Sketcher.Constraint("Coincident", 29, 2, 30, 1),
    Sketcher.Constraint("Coincident", 30, 2, 31, 1),
    Sketcher.Constraint("Coincident", 31, 2, 28, 1),
    Sketcher.Constraint("Coincident", 32, 2, 33, 1),
    Sketcher.Constraint("Coincident", 33, 2, 34, 1),
    Sketcher.Constraint("Coincident", 34, 2, 35, 1),
    Sketcher.Constraint("Coincident", 35, 2, 32, 1),
    Sketcher.Constraint("Vertical", 0),
    Sketcher.Constraint("Horizontal", 1),
    Sketcher.Constraint("Vertical", 2),
    Sketcher.Constraint("Horizontal", 3),
    Sketcher.Constraint("Vertical", 4),
    Sketcher.Constraint("Horizontal", 5),
    Sketcher.Constraint("Vertical", 6),
    Sketcher.Constraint("Horizontal", 7),
    Sketcher.Constraint("Vertical", 8),
    Sketcher.Constraint("Horizontal", 9),
    Sketcher.Constraint("Vertical", 10),
    Sketcher.Constraint("Horizontal", 11),
    Sketcher.Constraint("Vertical", 12),
    Sketcher.Constraint("Horizontal", 13),
    Sketcher.Constraint("Vertical", 14),
    Sketcher.Constraint("Horizontal", 15),
    Sketcher.Constraint("Vertical", 16),
    Sketcher.Constraint("Horizontal", 17),
    Sketcher.Constraint("Vertical", 18),
    Sketcher.Constraint("Horizontal", 19),
    Sketcher.Constraint("Vertical", 20),
    Sketcher.Constraint("Horizontal", 21),
    Sketcher.Constraint("Vertical", 22),
    Sketcher.Constraint("Horizontal", 23),
    Sketcher.Constraint("Vertical", 24),
    Sketcher.Constraint("Horizontal", 25),
    Sketcher.Constraint("Vertical", 26),
    Sketcher.Constraint("Horizontal", 27),
    Sketcher.Constraint("Vertical", 28),
    Sketcher.Constraint("Horizontal", 29),
    Sketcher.Constraint("Vertical", 30),
    Sketcher.Constraint("Horizontal", 31),
    Sketcher.Constraint("Vertical", 32),
    Sketcher.Constraint("Horizontal", 33),
    Sketcher.Constraint("Vertical", 34),
    Sketcher.Constraint("Horizontal", 35),
    Sketcher.Constraint("Symmetric", 16, 2, 18, 2, -1, 1),
    Sketcher.Constraint("Symmetric", 14, 2, 20, 2, -1, 1),
    Sketcher.Constraint("Symmetric", 12, 2, 22, 2, -1, 1),
    Sketcher.Constraint("Symmetric", 10, 2, 24, 2, -1, 1),
    Sketcher.Constraint("Symmetric", 8, 2, 26, 2, -1, 1),
    Sketcher.Constraint("Symmetric", 6, 2, 28, 2, -1, 1),
    Sketcher.Constraint("Symmetric", 4, 2, 30, 2, -1, 1),
    Sketcher.Constraint("Symmetric", 2, 2, 32, 2, -1, 1),
    Sketcher.Constraint("Symmetric", 0, 2, 34, 2, -1, 1),
    Sketcher.Constraint("Horizontal", 1, 2, 4, 2),
    Sketcher.Constraint("Horizontal", 3, 2, 6, 2),
    Sketcher.Constraint("Horizontal", 5, 2, 8, 2),
    Sketcher.Constraint("Horizontal", 7, 2, 10, 2),
    Sketcher.Constraint("Horizontal", 9, 2, 12, 2),
    Sketcher.Constraint("Horizontal", 11, 2, 14, 2),
    Sketcher.Constraint("Horizontal", 13, 2, 16, 2),
    Sketcher.Constraint("Horizontal", 15, 2, 18, 2),
    Sketcher.Constraint("Equal", 3, 5),
    Sketcher.Constraint("Equal", 7, 9),
    Sketcher.Constraint("Equal", 11, 13),
    Sketcher.Constraint("Equal", 15, 17),
    Sketcher.Constraint("DistanceX", 1, 1, 1, 2, 60.0),
    Sketcher.Constraint("DistanceY", 0, 1, 0, 2, 1000.0),
    Sketcher.Constraint("DistanceX", 0, 2, -1, 1, 500.0),
    Sketcher.Constraint("DistanceX", 8, 2, -1, 1, 265.0),
    Sketcher.Constraint("DistanceX", 5, 2, 12, 2, 175.0),
    Sketcher.Constraint("DistanceX", 13, 2, 20, 2, 175.0),
])
sketch8.setExpression("Constraints[93]", "Params.sketch8_width")
sketch8.setExpression("Constraints[94]", "Params.sketch8_height")
pad8 = body.newObject("PartDesign::Pad", "Pad007")
pad8.Profile = sketch8
pad8.setExpression("Length", "Params.pad8_length")

# Sketch on YZ plane
sketch9 = body.newObject("Sketcher::SketchObject", "Sketch008")
sketch9.AttachmentSupport = (doc.getObject("YZ_Plane"), [""])
sketch9.MapMode = "FlatFace"
sketch9.AttachmentOffset = App.Placement(App.Vector(0, 0, 500), App.Rotation())
sketch9.addGeometry([
    Part.LineSegment(App.Vector(20, 440, 0), App.Vector(0, 440, 0)),  # 0
    Part.LineSegment(App.Vector(0, 440, 0), App.Vector(0, 30, 0)),  # 1
    Part.LineSegment(App.Vector(0, 30, 0), App.Vector(20, 30, 0)),  # 2
    Part.LineSegment(App.Vector(20, 30, 0), App.Vector(20, 440, 0)),  # 3
    Part.LineSegment(App.Vector(20, -30, 0), App.Vector(0, -30, 0)),  # 4
    Part.LineSegment(App.Vector(0, -30, 0), App.Vector(0, -440, 0)),  # 5
    Part.LineSegment(App.Vector(0, -440, 0), App.Vector(20, -440, 0)),  # 6
    Part.LineSegment(App.Vector(20, -440, 0), App.Vector(20, -30, 0)),  # 7
], False)
sketch9.addConstraint([
    Sketcher.Constraint("Coincident", 0, 2, 1, 1),
    Sketcher.Constraint("Coincident", 1, 2, 2, 1),
    Sketcher.Constraint("Coincident", 2, 2, 3, 1),
    Sketcher.Constraint("Coincident", 3, 2, 0, 1),
    Sketcher.Constraint("Coincident", 4, 2, 5, 1),
    Sketcher.Constraint("Coincident", 5, 2, 6, 1),
    Sketcher.Constraint("Coincident", 6, 2, 7, 1),
    Sketcher.Constraint("Coincident", 7, 2, 4, 1),
    Sketcher.Constraint("Horizontal", 0),
    Sketcher.Constraint("Vertical", 1),
    Sketcher.Constraint("Horizontal", 2),
    Sketcher.Constraint("Vertical", 3),
    Sketcher.Constraint("Horizontal", 4),
    Sketcher.Constraint("Vertical", 5),
    Sketcher.Constraint("Horizontal", 6),
    Sketcher.Constraint("Vertical", 7),
    Sketcher.Constraint("Symmetric", 1, 2, 4, 2, -1, 1),
    Sketcher.Constraint("Symmetric", 0, 2, 5, 2, -1),
    Sketcher.Constraint("Vertical", 3, 2, 6, 2),
    Sketcher.Constraint("DistanceX", 0, 2, 0, 1, 20.0),
    Sketcher.Constraint("DistanceY", 1, 2, 1, 1, 410.0),
    Sketcher.Constraint("DistanceY", -1, 1, 0, 2, 440.0),
])
sketch9.setExpression("Constraints[19]", "Params.sketch9_width")
sketch9.setExpression("Constraints[20]", "Params.sketch9_height")
pocket1 = body.newObject("PartDesign::Pocket", "Pocket")
pocket1.Profile = sketch9
pocket1.setExpression("Length", "Params.pocket1_length")

doc.recompute()
